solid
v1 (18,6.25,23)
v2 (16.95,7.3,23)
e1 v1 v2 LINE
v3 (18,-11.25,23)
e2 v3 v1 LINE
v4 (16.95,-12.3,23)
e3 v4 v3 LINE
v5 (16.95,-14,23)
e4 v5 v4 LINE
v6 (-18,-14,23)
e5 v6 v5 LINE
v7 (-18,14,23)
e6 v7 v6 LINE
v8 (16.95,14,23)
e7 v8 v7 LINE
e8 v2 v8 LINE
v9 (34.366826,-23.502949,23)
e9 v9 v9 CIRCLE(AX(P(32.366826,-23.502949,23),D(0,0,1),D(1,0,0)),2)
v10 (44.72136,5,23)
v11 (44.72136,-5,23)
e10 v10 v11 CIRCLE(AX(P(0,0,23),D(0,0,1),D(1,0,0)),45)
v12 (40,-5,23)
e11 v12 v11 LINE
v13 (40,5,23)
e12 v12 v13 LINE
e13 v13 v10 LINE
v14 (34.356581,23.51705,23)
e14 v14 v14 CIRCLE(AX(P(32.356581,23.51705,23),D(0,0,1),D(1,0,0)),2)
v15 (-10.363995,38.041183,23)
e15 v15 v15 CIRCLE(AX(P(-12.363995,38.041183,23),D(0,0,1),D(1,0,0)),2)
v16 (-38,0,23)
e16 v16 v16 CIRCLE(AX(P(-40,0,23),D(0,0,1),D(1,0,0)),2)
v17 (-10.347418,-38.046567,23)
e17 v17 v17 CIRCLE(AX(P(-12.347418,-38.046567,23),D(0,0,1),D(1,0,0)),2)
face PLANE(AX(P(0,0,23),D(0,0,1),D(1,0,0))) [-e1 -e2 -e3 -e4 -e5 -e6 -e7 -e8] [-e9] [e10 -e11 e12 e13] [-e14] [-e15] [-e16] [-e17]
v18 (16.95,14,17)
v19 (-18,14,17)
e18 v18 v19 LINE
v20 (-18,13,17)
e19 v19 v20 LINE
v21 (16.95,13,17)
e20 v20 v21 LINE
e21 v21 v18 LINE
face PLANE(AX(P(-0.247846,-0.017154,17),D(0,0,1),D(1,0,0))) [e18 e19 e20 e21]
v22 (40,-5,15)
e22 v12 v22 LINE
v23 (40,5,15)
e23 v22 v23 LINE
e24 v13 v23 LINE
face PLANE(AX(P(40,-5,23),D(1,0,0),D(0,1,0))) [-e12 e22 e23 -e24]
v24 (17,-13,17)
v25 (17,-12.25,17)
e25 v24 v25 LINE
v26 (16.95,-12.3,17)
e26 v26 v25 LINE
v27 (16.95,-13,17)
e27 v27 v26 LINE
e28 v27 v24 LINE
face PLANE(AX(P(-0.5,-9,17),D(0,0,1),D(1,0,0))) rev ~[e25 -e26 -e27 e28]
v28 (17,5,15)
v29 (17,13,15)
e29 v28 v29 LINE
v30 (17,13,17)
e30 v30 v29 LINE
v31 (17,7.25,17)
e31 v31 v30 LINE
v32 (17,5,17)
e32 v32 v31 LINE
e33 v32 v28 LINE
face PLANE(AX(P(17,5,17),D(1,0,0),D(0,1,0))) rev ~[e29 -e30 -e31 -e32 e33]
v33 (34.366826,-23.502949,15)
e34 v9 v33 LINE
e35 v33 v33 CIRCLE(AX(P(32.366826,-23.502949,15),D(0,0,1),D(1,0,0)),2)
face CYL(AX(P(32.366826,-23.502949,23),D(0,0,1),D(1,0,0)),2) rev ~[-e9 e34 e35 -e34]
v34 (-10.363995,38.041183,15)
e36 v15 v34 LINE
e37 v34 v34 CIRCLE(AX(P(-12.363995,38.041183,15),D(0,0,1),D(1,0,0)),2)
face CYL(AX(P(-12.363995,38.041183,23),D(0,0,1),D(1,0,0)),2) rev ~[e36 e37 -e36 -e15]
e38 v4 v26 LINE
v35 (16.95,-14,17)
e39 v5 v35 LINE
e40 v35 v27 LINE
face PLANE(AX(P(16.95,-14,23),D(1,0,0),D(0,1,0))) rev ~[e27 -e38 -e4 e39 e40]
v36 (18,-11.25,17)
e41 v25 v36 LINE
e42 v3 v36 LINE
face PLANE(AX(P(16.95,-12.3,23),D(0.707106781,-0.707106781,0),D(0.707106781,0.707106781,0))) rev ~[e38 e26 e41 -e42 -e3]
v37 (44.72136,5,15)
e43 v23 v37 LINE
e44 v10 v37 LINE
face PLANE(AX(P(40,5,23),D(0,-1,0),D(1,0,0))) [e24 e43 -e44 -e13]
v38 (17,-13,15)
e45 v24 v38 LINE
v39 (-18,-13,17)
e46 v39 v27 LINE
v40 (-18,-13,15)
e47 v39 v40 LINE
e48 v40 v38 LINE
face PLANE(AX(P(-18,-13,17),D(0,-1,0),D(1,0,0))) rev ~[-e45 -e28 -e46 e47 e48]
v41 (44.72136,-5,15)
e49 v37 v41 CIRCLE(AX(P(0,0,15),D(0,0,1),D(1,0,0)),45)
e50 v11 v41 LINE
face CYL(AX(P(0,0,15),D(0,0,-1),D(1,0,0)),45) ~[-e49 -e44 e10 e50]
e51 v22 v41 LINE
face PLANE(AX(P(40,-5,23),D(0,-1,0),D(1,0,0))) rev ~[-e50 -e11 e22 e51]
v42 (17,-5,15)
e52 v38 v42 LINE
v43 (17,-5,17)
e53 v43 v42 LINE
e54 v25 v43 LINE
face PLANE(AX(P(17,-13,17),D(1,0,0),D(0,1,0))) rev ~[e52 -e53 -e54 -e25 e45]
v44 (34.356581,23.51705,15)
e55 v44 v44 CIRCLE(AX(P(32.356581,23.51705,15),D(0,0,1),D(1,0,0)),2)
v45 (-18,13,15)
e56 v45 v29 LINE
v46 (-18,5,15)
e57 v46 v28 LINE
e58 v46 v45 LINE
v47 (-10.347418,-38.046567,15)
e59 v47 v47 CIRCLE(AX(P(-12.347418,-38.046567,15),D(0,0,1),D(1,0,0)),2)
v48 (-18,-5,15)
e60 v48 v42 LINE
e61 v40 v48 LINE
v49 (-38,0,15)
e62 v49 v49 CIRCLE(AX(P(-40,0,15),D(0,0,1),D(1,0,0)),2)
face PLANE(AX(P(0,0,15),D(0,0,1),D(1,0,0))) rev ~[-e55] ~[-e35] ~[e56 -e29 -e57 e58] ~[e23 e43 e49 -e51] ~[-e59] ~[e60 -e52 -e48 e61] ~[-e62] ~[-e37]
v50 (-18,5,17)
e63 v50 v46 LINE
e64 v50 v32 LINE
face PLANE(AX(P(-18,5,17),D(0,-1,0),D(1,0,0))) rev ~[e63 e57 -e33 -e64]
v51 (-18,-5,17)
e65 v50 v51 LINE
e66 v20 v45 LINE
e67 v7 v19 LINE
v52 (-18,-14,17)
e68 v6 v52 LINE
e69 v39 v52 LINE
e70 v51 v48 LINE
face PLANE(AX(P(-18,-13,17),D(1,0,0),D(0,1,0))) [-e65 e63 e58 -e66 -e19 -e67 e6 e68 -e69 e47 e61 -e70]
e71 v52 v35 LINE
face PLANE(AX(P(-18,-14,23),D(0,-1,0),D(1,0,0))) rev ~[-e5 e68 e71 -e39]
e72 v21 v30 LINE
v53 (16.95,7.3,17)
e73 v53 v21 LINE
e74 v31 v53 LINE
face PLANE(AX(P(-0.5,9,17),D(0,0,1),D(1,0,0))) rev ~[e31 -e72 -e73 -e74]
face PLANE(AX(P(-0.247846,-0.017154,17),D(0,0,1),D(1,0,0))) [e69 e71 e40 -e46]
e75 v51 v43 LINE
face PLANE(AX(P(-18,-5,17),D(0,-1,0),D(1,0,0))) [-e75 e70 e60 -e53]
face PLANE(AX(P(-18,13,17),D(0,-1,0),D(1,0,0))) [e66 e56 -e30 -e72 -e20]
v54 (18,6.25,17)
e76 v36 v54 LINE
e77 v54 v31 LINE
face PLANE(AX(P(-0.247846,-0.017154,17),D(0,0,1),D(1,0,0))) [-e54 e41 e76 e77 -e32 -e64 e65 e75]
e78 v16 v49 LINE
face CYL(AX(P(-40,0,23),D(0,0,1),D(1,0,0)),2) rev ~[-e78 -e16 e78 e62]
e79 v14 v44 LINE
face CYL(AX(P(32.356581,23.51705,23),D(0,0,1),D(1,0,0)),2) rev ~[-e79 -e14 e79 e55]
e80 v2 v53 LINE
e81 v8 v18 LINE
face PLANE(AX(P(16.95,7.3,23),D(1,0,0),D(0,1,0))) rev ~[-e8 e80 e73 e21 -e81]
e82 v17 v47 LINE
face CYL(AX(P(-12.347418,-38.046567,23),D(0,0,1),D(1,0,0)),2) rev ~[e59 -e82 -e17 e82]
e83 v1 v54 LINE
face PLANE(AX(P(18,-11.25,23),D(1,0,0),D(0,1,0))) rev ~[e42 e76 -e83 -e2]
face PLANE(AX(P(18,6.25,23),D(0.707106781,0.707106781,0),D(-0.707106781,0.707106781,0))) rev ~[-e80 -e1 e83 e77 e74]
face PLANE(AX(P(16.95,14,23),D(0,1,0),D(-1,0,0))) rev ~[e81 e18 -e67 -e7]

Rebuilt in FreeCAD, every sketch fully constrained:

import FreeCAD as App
import Part
import Sketcher
from FreeCAD import Vector


def add_polygon(sketch, points):
    """Adds a closed chain of lines whose ends are joined by coincident constraints."""
    first, n = sketch.GeometryCount, len(points)
    for a, b in zip(points, points[1:] + points[:1]):
        sketch.addGeometry(Part.LineSegment(App.Vector(*a, 0), App.Vector(*b, 0)), False)
    for i in range(n):
        sketch.addConstraint(Sketcher.Constraint("Coincident", first + i, 2, first + (i + 1) % n, 1))

doc = App.newDocument("Part")
body = doc.addObject("PartDesign::Body", "Body")

# Sketch on XY plane
sketch1 = body.newObject("Sketcher::SketchObject", "Sketch")
sketch1.AttachmentSupport = (doc.getObject("XY_Plane"), [""])
sketch1.MapMode = "FlatFace"
sketch1.addGeometry(Part.Circle(Vector(0, 0, 0), Vector(0, 0, 1), 45), False)
sketch1.addConstraint(Sketcher.Constraint("Coincident", 0, 3, -1, 1))
sketch1.addConstraint(Sketcher.Constraint("Diameter", 0, 90.0))
pad1 = body.newObject("PartDesign::Pad", "Pad")
pad1.Profile = sketch1
pad1.Length = 8

# Sketch on XY plane
sketch2 = body.newObject("Sketcher::SketchObject", "Sketch001")
sketch2.AttachmentSupport = (doc.getObject("XY_Plane"), [""])
sketch2.MapMode = "FlatFace"
sketch2.AttachmentOffset = App.Placement(Vector(0, 0, 8), App.Rotation())
add_polygon(sketch2, [(-18, 14), (-18, -14), (16.95, -14), (16.95, -12.3), (18, -11.25), (18, 6.25), (16.95, 7.3), (16.95, 14)])  # lines 0-7
sketch2.addConstraint(Sketcher.Constraint("Vertical", 0))
sketch2.addConstraint(Sketcher.Constraint("Horizontal", 1))
sketch2.addConstraint(Sketcher.Constraint("Vertical", 2))
sketch2.addConstraint(Sketcher.Constraint("Vertical", 4))
sketch2.addConstraint(Sketcher.Constraint("Vertical", 6))
sketch2.addConstraint(Sketcher.Constraint("Horizontal", 7))
sketch2.addConstraint(Sketcher.Constraint("Symmetric", 1, 2, 6, 2, -1))
sketch2.addConstraint(Sketcher.Constraint("Perpendicular", 3, 5))
sketch2.addConstraint(Sketcher.Constraint("Equal", 3, 5))
sketch2.addConstraint(Sketcher.Constraint("DistanceY", 0, 2, 0, 1, 28.0))
sketch2.addConstraint(Sketcher.Constraint("DistanceY", 2, 1, 2, 2, 1.7))
sketch2.addConstraint(Sketcher.Constraint("DistanceY", 4, 1, 4, 2, 17.5))
sketch2.addConstraint(Sketcher.Constraint("DistanceY", 6, 1, 6, 2, 6.7))
sketch2.addConstraint(Sketcher.Constraint("DistanceX", 0, 2, -1, 1, 18.0))
sketch2.addConstraint(Sketcher.Constraint("DistanceX", -1, 1, 3, 2, 18.0))
pocket1 = body.newObject("PartDesign::Pocket", "Pocket")
pocket1.Profile = sketch2
pocket1.Length = 6

# Sketch on XY plane
sketch3 = body.newObject("Sketcher::SketchObject", "Sketch002")
sketch3.AttachmentSupport = (doc.getObject("XY_Plane"), [""])
sketch3.MapMode = "FlatFace"
sketch3.AttachmentOffset = App.Placement(Vector(0, 0, 8), App.Rotation())
sketch3.addGeometry(Part.Circle(Vector(-40, 0, 0), Vector(0, 0, 1), 2), False)
sketch3.addGeometry(Part.Circle(Vector(-12.363995, 38.041183, 0), Vector(0, 0, 1), 2), False)
sketch3.addGeometry(Part.Circle(Vector(32.356581, 23.51705, 0), Vector(0, 0, 1), 2), False)
sketch3.addGeometry(Part.Circle(Vector(32.366826, -23.502949, 0), Vector(0, 0, 1), 2), False)
sketch3.addGeometry(Part.Circle(Vector(-12.347418, -38.046567, 0), Vector(0, 0, 1), 2), False)
sketch3.addConstraint(Sketcher.Constraint("Equal", 0, 1))
sketch3.addConstraint(Sketcher.Constraint("Equal", 1, 2))
sketch3.addConstraint(Sketcher.Constraint("Equal", 2, 3))
sketch3.addConstraint(Sketcher.Constraint("Equal", 3, 4))
sketch3.addConstraint(Sketcher.Constraint("PointOnObject", 0, 3, -1))
sketch3.addConstraint(Sketcher.Constraint("Diameter", 0, 4.0))
sketch3.addConstraint(Sketcher.Constraint("DistanceX", 0, 3, -1, 1, 40.0))
sketch3.addConstraint(Sketcher.Constraint("DistanceY", 3, 3, 2, 3, 47.019999))
sketch3.addConstraint(Sketcher.Constraint("DistanceX", 4, 3, 2, 3, 44.703999))
sketch3.addConstraint(Sketcher.Constraint("DistanceX", -1, 1, 2, 3, 32.356581))
sketch3.addConstraint(Sketcher.Constraint("DistanceY", -1, 1, 2, 3, 23.51705))
sketch3.addConstraint(Sketcher.Constraint("DistanceX", 1, 3, 3, 3, 44.730821))
sketch3.addConstraint(Sketcher.Constraint("DistanceY", 3, 3, 1, 3, 61.544132))
sketch3.addConstraint(Sketcher.Constraint("DistanceY", 4, 3, 3, 3, 14.543618))
sketch3.addConstraint(Sketcher.Constraint("DistanceX", 1, 3, -1, 1, 12.363995))
pocket2 = body.newObject("PartDesign::Pocket", "Pocket001")
pocket2.Profile = sketch3
pocket2.Length = 10

# Sketch on XY plane
sketch4 = body.newObject("Sketcher::SketchObject", "Sketch003")
sketch4.AttachmentSupport = (doc.getObject("XY_Plane"), [""])
sketch4.MapMode = "FlatFace"
sketch4.AttachmentOffset = App.Placement(Vector(0, 0, 2), App.Rotation())
add_polygon(sketch4, [(-18, -5), (-18, -13), (17, -13), (17, -5)])  # lines 0-3
add_polygon(sketch4, [(-18, 13), (-18, 5), (17, 5), (17, 13)])  # lines 4-7
sketch4.addConstraint(Sketcher.Constraint("Vertical", 0))
sketch4.addConstraint(Sketcher.Constraint("Horizontal", 1))
sketch4.addConstraint(Sketcher.Constraint("Vertical", 2))
sketch4.addConstraint(Sketcher.Constraint("Horizontal", 3))
sketch4.addConstraint(Sketcher.Constraint("Vertical", 4))
sketch4.addConstraint(Sketcher.Constraint("Horizontal", 5))
sketch4.addConstraint(Sketcher.Constraint("Vertical", 6))
sketch4.addConstraint(Sketcher.Constraint("Horizontal", 7))
sketch4.addConstraint(Sketcher.Constraint("Symmetric", 3, 2, 4, 2, -1))
sketch4.addConstraint(Sketcher.Constraint("Symmetric", 1, 2, 6, 2, -1))
sketch4.addConstraint(Sketcher.Constraint("DistanceX", 1, 1, 1, 2, 35.0))
sketch4.addConstraint(Sketcher.Constraint("DistanceY", 0, 2, 0, 1, 8.0))
sketch4.addConstraint(Sketcher.Constraint("DistanceX", 0, 2, -1, 1, 18.0))
sketch4.addConstraint(Sketcher.Constraint("DistanceY", 0, 2, -1, 1, 13.0))
pocket3 = body.newObject("PartDesign::Pocket", "Pocket002")
pocket3.Profile = sketch4
pocket3.Length = 5

# Sketch on XY plane
sketch5 = body.newObject("Sketcher::SketchObject", "Sketch004")
sketch5.AttachmentSupport = (doc.getObject("XY_Plane"), [""])
sketch5.MapMode = "FlatFace"
sketch5.AttachmentOffset = App.Placement(Vector(0, 0, 8), App.Rotation())
add_polygon(sketch5, [(40, 5), (40, -5), (45, -5), (45, 5)])  # lines 0-3
sketch5.addConstraint(Sketcher.Constraint("Vertical", 0))
sketch5.addConstraint(Sketcher.Constraint("Horizontal", 1))
sketch5.addConstraint(Sketcher.Constraint("Vertical", 2))
sketch5.addConstraint(Sketcher.Constraint("Horizontal", 3))
sketch5.addConstraint(Sketcher.Constraint("DistanceX", 1, 1, 1, 2, 5.0))
sketch5.addConstraint(Sketcher.Constraint("DistanceY", 0, 2, 0, 1, 10.0))
sketch5.addConstraint(Sketcher.Constraint("DistanceX", -1, 1, 0, 2, 40.0))
sketch5.addConstraint(Sketcher.Constraint("DistanceY", 0, 2, -1, 1, 5.0))
pocket4 = body.newObject("PartDesign::Pocket", "Pocket003")
pocket4.Profile = sketch5
pocket4.Length = 10
body2 = doc.addObject("PartDesign::Body", "Body001")
doc.recompute()

body.Placement = App.Placement(Vector(0, 0, 15), App.Rotation(Vector(0, 0, 1), 0))
boolean = body2.newObject("PartDesign::Boolean", "Boolean")
boolean.Type = "Fuse"
boolean.addObjects([body])

doc.recompute()
